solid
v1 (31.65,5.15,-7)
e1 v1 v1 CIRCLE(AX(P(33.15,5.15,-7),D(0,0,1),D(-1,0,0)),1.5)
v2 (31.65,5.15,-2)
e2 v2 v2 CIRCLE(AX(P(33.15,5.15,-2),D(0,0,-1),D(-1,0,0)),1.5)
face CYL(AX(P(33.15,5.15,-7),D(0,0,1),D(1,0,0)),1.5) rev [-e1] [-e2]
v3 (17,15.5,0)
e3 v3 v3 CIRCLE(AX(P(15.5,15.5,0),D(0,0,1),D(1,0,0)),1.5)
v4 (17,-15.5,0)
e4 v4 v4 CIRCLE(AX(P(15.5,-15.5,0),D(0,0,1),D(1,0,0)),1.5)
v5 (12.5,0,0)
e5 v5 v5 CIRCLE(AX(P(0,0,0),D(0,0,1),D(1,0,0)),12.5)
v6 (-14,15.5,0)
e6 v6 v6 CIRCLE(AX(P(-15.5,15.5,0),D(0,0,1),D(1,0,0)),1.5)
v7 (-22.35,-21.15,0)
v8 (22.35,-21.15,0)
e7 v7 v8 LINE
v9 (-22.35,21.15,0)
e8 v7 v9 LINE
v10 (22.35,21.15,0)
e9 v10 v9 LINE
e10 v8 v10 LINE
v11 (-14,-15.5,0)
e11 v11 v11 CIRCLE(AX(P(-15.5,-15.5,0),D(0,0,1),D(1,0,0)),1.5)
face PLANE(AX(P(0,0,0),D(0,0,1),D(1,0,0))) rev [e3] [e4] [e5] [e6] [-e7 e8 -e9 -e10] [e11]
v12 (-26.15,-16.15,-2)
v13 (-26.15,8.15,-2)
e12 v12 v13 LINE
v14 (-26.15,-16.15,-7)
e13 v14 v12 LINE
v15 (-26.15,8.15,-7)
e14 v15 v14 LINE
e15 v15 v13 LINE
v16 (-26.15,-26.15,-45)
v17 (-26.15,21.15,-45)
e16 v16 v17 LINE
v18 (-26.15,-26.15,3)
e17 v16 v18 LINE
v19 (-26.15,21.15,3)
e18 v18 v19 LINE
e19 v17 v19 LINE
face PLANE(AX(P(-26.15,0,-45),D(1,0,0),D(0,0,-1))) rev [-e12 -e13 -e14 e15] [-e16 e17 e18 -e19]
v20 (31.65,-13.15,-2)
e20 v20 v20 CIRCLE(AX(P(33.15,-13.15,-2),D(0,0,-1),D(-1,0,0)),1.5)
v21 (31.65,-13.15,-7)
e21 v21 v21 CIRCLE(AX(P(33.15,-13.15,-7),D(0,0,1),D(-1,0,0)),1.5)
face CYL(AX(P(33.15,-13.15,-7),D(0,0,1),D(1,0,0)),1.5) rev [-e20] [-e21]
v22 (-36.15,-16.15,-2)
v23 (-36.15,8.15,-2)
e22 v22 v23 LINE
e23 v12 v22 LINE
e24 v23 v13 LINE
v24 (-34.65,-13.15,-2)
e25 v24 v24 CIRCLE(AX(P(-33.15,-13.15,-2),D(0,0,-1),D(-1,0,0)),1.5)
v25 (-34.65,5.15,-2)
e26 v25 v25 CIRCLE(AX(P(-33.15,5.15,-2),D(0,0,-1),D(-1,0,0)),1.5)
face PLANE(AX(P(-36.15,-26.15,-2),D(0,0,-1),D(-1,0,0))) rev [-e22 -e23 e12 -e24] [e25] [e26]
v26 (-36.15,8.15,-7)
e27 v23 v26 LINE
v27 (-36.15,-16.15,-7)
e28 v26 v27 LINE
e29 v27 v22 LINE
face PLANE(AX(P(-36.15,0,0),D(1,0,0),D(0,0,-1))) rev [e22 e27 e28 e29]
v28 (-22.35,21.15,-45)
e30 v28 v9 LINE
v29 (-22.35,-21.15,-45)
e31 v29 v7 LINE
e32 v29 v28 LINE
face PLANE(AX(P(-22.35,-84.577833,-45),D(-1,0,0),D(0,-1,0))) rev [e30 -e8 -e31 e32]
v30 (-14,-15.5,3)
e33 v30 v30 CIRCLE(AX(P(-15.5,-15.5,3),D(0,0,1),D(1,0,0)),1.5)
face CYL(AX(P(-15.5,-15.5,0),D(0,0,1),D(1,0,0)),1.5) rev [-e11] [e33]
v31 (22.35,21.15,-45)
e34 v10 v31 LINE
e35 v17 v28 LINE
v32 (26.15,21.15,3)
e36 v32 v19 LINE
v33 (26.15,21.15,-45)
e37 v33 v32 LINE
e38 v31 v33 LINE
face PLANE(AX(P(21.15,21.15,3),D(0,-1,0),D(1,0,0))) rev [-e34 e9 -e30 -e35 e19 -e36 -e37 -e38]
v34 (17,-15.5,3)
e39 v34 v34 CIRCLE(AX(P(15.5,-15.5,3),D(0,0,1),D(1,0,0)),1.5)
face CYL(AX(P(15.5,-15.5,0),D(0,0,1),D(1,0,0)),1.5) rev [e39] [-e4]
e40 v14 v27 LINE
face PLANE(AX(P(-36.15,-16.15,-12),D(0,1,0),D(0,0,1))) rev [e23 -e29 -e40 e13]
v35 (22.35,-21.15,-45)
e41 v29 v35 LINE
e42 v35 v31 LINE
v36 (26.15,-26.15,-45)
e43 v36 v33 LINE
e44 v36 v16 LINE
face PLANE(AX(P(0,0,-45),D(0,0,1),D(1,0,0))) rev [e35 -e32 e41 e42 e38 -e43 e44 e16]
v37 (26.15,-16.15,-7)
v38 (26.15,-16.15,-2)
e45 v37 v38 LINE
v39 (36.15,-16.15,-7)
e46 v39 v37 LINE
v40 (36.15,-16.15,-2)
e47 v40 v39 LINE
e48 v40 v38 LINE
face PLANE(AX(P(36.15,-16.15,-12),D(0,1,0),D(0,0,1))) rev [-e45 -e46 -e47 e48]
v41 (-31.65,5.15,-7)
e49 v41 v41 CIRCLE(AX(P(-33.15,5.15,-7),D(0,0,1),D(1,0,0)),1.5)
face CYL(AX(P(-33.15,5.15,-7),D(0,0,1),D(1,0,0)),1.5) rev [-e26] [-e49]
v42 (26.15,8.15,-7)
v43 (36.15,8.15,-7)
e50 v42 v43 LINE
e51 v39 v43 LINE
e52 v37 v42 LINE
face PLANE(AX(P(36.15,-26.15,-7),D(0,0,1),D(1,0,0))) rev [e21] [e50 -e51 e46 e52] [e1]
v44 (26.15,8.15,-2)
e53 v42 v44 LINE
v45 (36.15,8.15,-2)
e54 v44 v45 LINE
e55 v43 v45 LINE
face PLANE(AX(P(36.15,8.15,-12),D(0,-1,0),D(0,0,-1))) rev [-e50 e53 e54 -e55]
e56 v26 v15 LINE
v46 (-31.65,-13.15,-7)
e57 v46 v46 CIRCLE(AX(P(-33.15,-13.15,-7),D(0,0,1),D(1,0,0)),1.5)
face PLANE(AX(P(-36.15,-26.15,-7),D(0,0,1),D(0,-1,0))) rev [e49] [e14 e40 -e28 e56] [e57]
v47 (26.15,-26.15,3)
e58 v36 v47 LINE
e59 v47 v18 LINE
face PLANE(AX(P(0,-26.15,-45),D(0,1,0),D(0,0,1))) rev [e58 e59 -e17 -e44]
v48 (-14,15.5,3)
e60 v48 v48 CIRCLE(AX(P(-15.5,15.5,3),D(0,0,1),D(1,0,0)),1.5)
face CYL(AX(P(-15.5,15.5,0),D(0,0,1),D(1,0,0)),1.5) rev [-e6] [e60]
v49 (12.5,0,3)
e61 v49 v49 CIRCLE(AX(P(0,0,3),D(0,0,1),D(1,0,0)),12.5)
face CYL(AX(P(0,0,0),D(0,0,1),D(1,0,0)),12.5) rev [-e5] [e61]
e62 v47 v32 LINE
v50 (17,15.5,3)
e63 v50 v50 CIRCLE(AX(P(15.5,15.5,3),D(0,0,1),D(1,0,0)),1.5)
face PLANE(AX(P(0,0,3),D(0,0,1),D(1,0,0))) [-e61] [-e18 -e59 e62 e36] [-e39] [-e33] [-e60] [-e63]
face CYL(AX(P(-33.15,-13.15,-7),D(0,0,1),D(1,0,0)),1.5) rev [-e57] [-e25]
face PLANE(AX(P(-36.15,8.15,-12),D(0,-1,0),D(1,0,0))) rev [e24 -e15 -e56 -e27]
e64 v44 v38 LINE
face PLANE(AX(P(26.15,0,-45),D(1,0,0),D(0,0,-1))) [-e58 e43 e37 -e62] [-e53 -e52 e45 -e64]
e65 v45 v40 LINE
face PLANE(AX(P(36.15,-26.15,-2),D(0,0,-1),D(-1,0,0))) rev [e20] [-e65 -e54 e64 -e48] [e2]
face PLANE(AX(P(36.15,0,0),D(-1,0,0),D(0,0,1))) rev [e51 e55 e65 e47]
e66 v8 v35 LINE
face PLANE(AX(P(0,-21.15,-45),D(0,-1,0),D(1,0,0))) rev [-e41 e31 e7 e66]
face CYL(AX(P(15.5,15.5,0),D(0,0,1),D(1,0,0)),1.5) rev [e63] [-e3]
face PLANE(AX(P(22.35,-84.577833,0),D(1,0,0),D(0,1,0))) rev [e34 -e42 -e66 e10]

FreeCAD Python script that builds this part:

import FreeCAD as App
import Part
import Sketcher
from FreeCAD import Vector

doc = App.newDocument("Part")
params = doc.addObject("Spreadsheet::Sheet", "Params")
for row, (alias, value) in enumerate([
    ("sketch1_width", "42.3 mm"),
    ("pad1_length", "3 mm"),
    ("sketch2_diameter", "3 mm"),
    ("pocket1_length", "3 mm"),
    ("sketch3_diameter", "25 mm"),
    ("pocket2_length", "3 mm"),
    ("sketch4_width", "5 mm"),
    ("sketch4_width2", "52.3 mm"),
    ("sketch4_height", "47.3 mm"),
    ("pad2_length", "48 mm"),
    ("sketch5_height", "5 mm"),
    ("sketch5_width", "47.3 mm"),
    ("pad3_length", "10 mm"),
    ("sketch6_height", "5 mm"),
    ("sketch6_width", "47.3 mm"),
    ("pad4_length", "10 mm"),
    ("sketch7_diameter", "3 mm"),
    ("pocket3_length", "10 mm"),
    ("sketch8_height", "45 mm"),
    ("sketch8_width", "44.7 mm"),
    ("pocket4_length", "42.3 mm"),
    ("sketch9_width", "10 mm"),
    ("sketch9_height", "13 mm"),
    ("pocket5_length", "10 mm"),
], start=1):
    params.set(f"A{row}", alias)
    params.set(f"B{row}", "=" + value)
    params.setAlias(f"B{row}", alias)

body = doc.addObject("PartDesign::Body", "Body")

sketch1 = body.newObject("Sketcher::SketchObject", "Sketch")
sketch1.AttachmentSupport = (doc.getObject("XY_Plane"), [""])
sketch1.MapMode = "FlatFace"
sketch1.addGeometry([
    Part.LineSegment(Vector(-21, 21, 0), Vector(-21, -21, 0)),
    Part.LineSegment(Vector(-21, -21, 0), Vector(21, -21, 0)),
    Part.LineSegment(Vector(21, -21, 0), Vector(21, 21, 0)),
    Part.LineSegment(Vector(21, 21, 0), Vector(-21, 21, 0)),
], False)
sketch1.addConstraint([
    Sketcher.Constraint("Coincident", 0, 2, 1, 1),
    Sketcher.Constraint("Coincident", 1, 2, 2, 1),
    Sketcher.Constraint("Coincident", 2, 2, 3, 1),
    Sketcher.Constraint("Coincident", 3, 2, 0, 1),
    Sketcher.Constraint("Vertical", 0),
    Sketcher.Constraint("Horizontal", 1),
    Sketcher.Constraint("Vertical", 2),
    Sketcher.Constraint("Horizontal", 3),
    Sketcher.Constraint("Symmetric", 0, 2, 2, 2, -1, 1),
    Sketcher.Constraint("Equal", 3, 0),
    Sketcher.Constraint("DistanceX", 1, 1, 1, 2, 42.3),
])
sketch1.setExpression("Constraints[10]", "Params.sketch1_width")
pad1 = body.newObject("PartDesign::Pad", "Pad")
pad1.Profile = sketch1
pad1.setExpression("Length", "Params.pad1_length")

sketch2 = body.newObject("Sketcher::SketchObject", "Sketch001")
sketch2.AttachmentSupport = (doc.getObject("XY_Plane"), [""])
sketch2.MapMode = "FlatFace"
sketch2.AttachmentOffset = App.Placement(Vector(0, 0, 3), App.Rotation())
sketch2.addGeometry([
    Part.Circle(Vector(-15.5, 15.5, 0), Vector(0, 0, 1), 1.5),
    Part.Circle(Vector(15.5, 15.5, 0), Vector(0, 0, 1), 1.5),
    Part.Circle(Vector(15.5, -15.5, 0), Vector(0, 0, 1), 1.5),
    Part.Circle(Vector(-15.5, -15.5, 0), Vector(0, 0, 1), 1.5),
], False)
sketch2.addConstraint([
    Sketcher.Constraint("Equal", 0, 1),
    Sketcher.Constraint("Equal", 1, 2),
    Sketcher.Constraint("Equal", 2, 3),
    Sketcher.Constraint("Symmetric", 0, 3, 2, 3, -1, 1),
    Sketcher.Constraint("Symmetric", 1, 3, 3, 3, -1, 1),
    Sketcher.Constraint("Symmetric", 0, 3, 1, 3, -2),
    Sketcher.Constraint("Diameter", 0, 3.0),
    Sketcher.Constraint("DistanceX", 0, 3, 1, 3, 31.0),
    Sketcher.Constraint("DistanceY", 2, 3, 1, 3, 31.0),
])
sketch2.setExpression("Constraints[6]", "Params.sketch2_diameter")
pocket1 = body.newObject("PartDesign::Pocket", "Pocket")
pocket1.Profile = sketch2
pocket1.setExpression("Length", "Params.pocket1_length")

sketch3 = body.newObject("Sketcher::SketchObject", "Sketch002")
sketch3.AttachmentSupport = (doc.getObject("XY_Plane"), [""])
sketch3.MapMode = "FlatFace"
sketch3.AttachmentOffset = App.Placement(Vector(0, 0, 3), App.Rotation())
sketch3.addGeometry(Part.Circle(Vector(0, 0, 0), Vector(0, 0, 1), 12), False)
sketch3.addConstraint([
    Sketcher.Constraint("Coincident", 0, 3, -1, 1),
    Sketcher.Constraint("Diameter", 0, 25.0),
])
sketch3.setExpression("Constraints[1]", "Params.sketch3_diameter")
pocket2 = body.newObject("PartDesign::Pocket", "Pocket001")
pocket2.Profile = sketch3
pocket2.setExpression("Length", "Params.pocket2_length")

sketch4 = body.newObject("Sketcher::SketchObject", "Sketch003")
sketch4.AttachmentSupport = (doc.getObject("XY_Plane"), [""])
sketch4.MapMode = "FlatFace"
sketch4.AttachmentOffset = App.Placement(Vector(0, 0, 3), App.Rotation())
sketch4.addGeometry([
    Part.LineSegment(Vector(-26, -26, 0), Vector(26, -26, 0)),
    Part.LineSegment(Vector(26, -26, 0), Vector(26, 21, 0)),
    Part.LineSegment(Vector(26, 21, 0), Vector(21, 21, 0)),
    Part.LineSegment(Vector(21, 21, 0), Vector(21, -21, 0)),
    Part.LineSegment(Vector(21, -21, 0), Vector(-21, -21, 0)),
    Part.LineSegment(Vector(-21, -21, 0), Vector(-21, 21, 0)),
    Part.LineSegment(Vector(-21, 21, 0), Vector(-26, 21, 0)),
    Part.LineSegment(Vector(-26, 21, 0), Vector(-26, -26, 0)),
], False)
sketch4.addConstraint([
    Sketcher.Constraint("Coincident", 0, 2, 1, 1),
    Sketcher.Constraint("Coincident", 1, 2, 2, 1),
    Sketcher.Constraint("Coincident", 2, 2, 3, 1),
    Sketcher.Constraint("Coincident", 3, 2, 4, 1),
    Sketcher.Constraint("Coincident", 4, 2, 5, 1),
    Sketcher.Constraint("Coincident", 5, 2, 6, 1),
    Sketcher.Constraint("Coincident", 6, 2, 7, 1),
    Sketcher.Constraint("Coincident", 7, 2, 0, 1),
    Sketcher.Constraint("Horizontal", 0),
    Sketcher.Constraint("Vertical", 1),
    Sketcher.Constraint("Horizontal", 2),
    Sketcher.Constraint("Vertical", 3),
    Sketcher.Constraint("Horizontal", 4),
    Sketcher.Constraint("Vertical", 5),
    Sketcher.Constraint("Horizontal", 6),
    Sketcher.Constraint("Vertical", 7),
    Sketcher.Constraint("Symmetric", 2, 2, 4, 2, -1, 1),
    Sketcher.Constraint("Symmetric", 1, 2, 6, 2, -2),
    Sketcher.Constraint("Equal", 4, 3),
    Sketcher.Constraint("DistanceX", 2, 2, 2, 1, 5.0),
    Sketcher.Constraint("DistanceX", 0, 1, 0, 2, 52.3),
    Sketcher.Constraint("DistanceY", 1, 1, 1, 2, 47.3),
])
sketch4.setExpression("Constraints[19]", "Params.sketch4_width")
sketch4.setExpression("Constraints[20]", "Params.sketch4_width2")
sketch4.setExpression("Constraints[21]", "Params.sketch4_height")
pad2 = body.newObject("PartDesign::Pad", "Pad001")
pad2.Profile = sketch4
pad2.setExpression("Length", "Params.pad2_length")
pad2.Reversed = True

sketch5 = body.newObject("Sketcher::SketchObject", "Sketch004")
sketch5.AttachmentSupport = (doc.getObject("YZ_Plane"), [""])
sketch5.MapMode = "FlatFace"
sketch5.AttachmentOffset = App.Placement(Vector(0, 0, -26.15), App.Rotation())
sketch5.addGeometry([
    Part.LineSegment(Vector(21, -7, 0), Vector(-26, -7, 0)),
    Part.LineSegment(Vector(-26, -7, 0), Vector(-26, -2, 0)),
    Part.LineSegment(Vector(-26, -2, 0), Vector(21, -2, 0)),
    Part.LineSegment(Vector(21, -2, 0), Vector(21, -7, 0)),
], False)
sketch5.addConstraint([
    Sketcher.Constraint("Coincident", 0, 2, 1, 1),
    Sketcher.Constraint("Coincident", 1, 2, 2, 1),
    Sketcher.Constraint("Coincident", 2, 2, 3, 1),
    Sketcher.Constraint("Coincident", 3, 2, 0, 1),
    Sketcher.Constraint("Horizontal", 0),
    Sketcher.Constraint("Vertical", 1),
    Sketcher.Constraint("Horizontal", 2),
    Sketcher.Constraint("Vertical", 3),
    Sketcher.Constraint("DistanceY", 1, 1, 1, 2, 5.0),
    Sketcher.Constraint("DistanceX", 0, 2, 0, 1, 47.3),
    Sketcher.Constraint("DistanceY", 0, 2, -1, 1, 7.0),
    Sketcher.Constraint("DistanceX", 0, 2, -1, 1, 26.15),
])
sketch5.setExpression("Constraints[8]", "Params.sketch5_height")
sketch5.setExpression("Constraints[9]", "Params.sketch5_width")
pad3 = body.newObject("PartDesign::Pad", "Pad002")
pad3.Profile = sketch5
pad3.setExpression("Length", "Params.pad3_length")
pad3.Reversed = True

sketch6 = body.newObject("Sketcher::SketchObject", "Sketch005")
sketch6.AttachmentSupport = (doc.getObject("YZ_Plane"), [""])
sketch6.MapMode = "FlatFace"
sketch6.AttachmentOffset = App.Placement(Vector(0, 0, 26.15), App.Rotation())
sketch6.addGeometry([
    Part.LineSegment(Vector(21, -2, 0), Vector(-26, -2, 0)),
    Part.LineSegment(Vector(-26, -2, 0), Vector(-26, -7, 0)),
    Part.LineSegment(Vector(-26, -7, 0), Vector(21, -7, 0)),
    Part.LineSegment(Vector(21, -7, 0), Vector(21, -2, 0)),
], False)
sketch6.addConstraint([
    Sketcher.Constraint("Coincident", 0, 2, 1, 1),
    Sketcher.Constraint("Coincident", 1, 2, 2, 1),
    Sketcher.Constraint("Coincident", 2, 2, 3, 1),
    Sketcher.Constraint("Coincident", 3, 2, 0, 1),
    Sketcher.Constraint("Horizontal", 0),
    Sketcher.Constraint("Vertical", 1),
    Sketcher.Constraint("Horizontal", 2),
    Sketcher.Constraint("Vertical", 3),
    Sketcher.Constraint("DistanceY", 1, 2, 1, 1, 5.0),
    Sketcher.Constraint("DistanceX", 0, 2, 0, 1, 47.3),
    Sketcher.Constraint("DistanceY", 0, 2, -1, 1, 2.0),
    Sketcher.Constraint("DistanceX", 0, 2, -1, 1, 26.15),
])
sketch6.setExpression("Constraints[8]", "Params.sketch6_height")
sketch6.setExpression("Constraints[9]", "Params.sketch6_width")
pad4 = body.newObject("PartDesign::Pad", "Pad003")
pad4.Profile = sketch6
pad4.setExpression("Length", "Params.pad4_length")

sketch7 = body.newObject("Sketcher::SketchObject", "Sketch006")
sketch7.AttachmentSupport = (doc.getObject("XY_Plane"), [""])
sketch7.MapMode = "FlatFace"
sketch7.AttachmentOffset = App.Placement(Vector(0, 0, 3), App.Rotation())
sketch7.addGeometry([
    Part.Circle(Vector(-33.1, -13.2, 0), Vector(0, 0, 1), 1.5),
    Part.Circle(Vector(-33.1, 5.2, 0), Vector(0, 0, 1), 1.5),
    Part.Circle(Vector(33.1, -13.2, 0), Vector(0, 0, 1), 1.5),
    Part.Circle(Vector(33.1, 5.2, 0), Vector(0, 0, 1), 1.5),
], False)
sketch7.addConstraint([
    Sketcher.Constraint("Equal", 0, 1),
    Sketcher.Constraint("Equal", 1, 2),
    Sketcher.Constraint("Equal", 2, 3),
    Sketcher.Constraint("Symmetric", 0, 3, 2, 3, -2),
    Sketcher.Constraint("Symmetric", 1, 3, 3, 3, -2),
    Sketcher.Constraint("Vertical", 0, 3, 1, 3),
    Sketcher.Constraint("Diameter", 0, 3.0),
    Sketcher.Constraint("DistanceY", 0, 3, 1, 3, 18.3),
    Sketcher.Constraint("DistanceX", 0, 3, 2, 3, 66.3),
    Sketcher.Constraint("DistanceY", 0, 3, -1, 1, 13.15),
])
sketch7.setExpression("Constraints[6]", "Params.sketch7_diameter")
pocket3 = body.newObject("PartDesign::Pocket", "Pocket002")
pocket3.Profile = sketch7
pocket3.setExpression("Length", "Params.pocket3_length")

sketch8 = body.newObject("Sketcher::SketchObject", "Sketch007")
sketch8.AttachmentSupport = (doc.getObject("XZ_Plane"), [""])
sketch8.MapMode = "FlatFace"
sketch8.AttachmentOffset = App.Placement(Vector(0, 0, -21.15), App.Rotation())
sketch8.addGeometry([
    Part.LineSegment(Vector(-22, -45, 0), Vector(-22, 0, 0)),
    Part.LineSegment(Vector(-22, 0, 0), Vector(22, 0, 0)),
    Part.LineSegment(Vector(22, 0, 0), Vector(22, -45, 0)),
    Part.LineSegment(Vector(22, -45, 0), Vector(-22, -45, 0)),
], False)
sketch8.addConstraint([
    Sketcher.Constraint("Coincident", 0, 2, 1, 1),
    Sketcher.Constraint("Coincident", 1, 2, 2, 1),
    Sketcher.Constraint("Coincident", 2, 2, 3, 1),
    Sketcher.Constraint("Coincident", 3, 2, 0, 1),
    Sketcher.Constraint("Vertical", 0),
    Sketcher.Constraint("Horizontal", 1),
    Sketcher.Constraint("Vertical", 2),
    Sketcher.Constraint("Horizontal", 3),
    Sketcher.Constraint("Symmetric", 0, 2, 1, 2, -1, 1),
    Sketcher.Constraint("DistanceY", 0, 1, 0, 2, 45.0),
    Sketcher.Constraint("DistanceX", 1, 1, 1, 2, 44.7),
])
sketch8.setExpression("Constraints[9]", "Params.sketch8_height")
sketch8.setExpression("Constraints[10]", "Params.sketch8_width")
pocket4 = body.newObject("PartDesign::Pocket", "Pocket003")
pocket4.Profile = sketch8
pocket4.setExpression("Length", "Params.pocket4_length")
pocket4.Reversed = True

sketch9 = body.newObject("Sketcher::SketchObject", "Sketch008")
sketch9.AttachmentSupport = (doc.getObject("XY_Plane"), [""])
sketch9.MapMode = "FlatFace"
sketch9.AttachmentOffset = App.Placement(Vector(0, 0, -2), App.Rotation())
sketch9.addGeometry([
    Part.LineSegment(Vector(-36, 21, 0), Vector(-36, 8, 0)),
    Part.LineSegment(Vector(-36, 8, 0), Vector(-26, 8, 0)),
    Part.LineSegment(Vector(-26, 8, 0), Vector(-26, 21, 0)),
    Part.LineSegment(Vector(-26, 21, 0), Vector(-36, 21, 0)),
    Part.LineSegment(Vector(26, 21, 0), Vector(26, 8, 0)),
    Part.LineSegment(Vector(26, 8, 0), Vector(36, 8, 0)),
    Part.LineSegment(Vector(36, 8, 0), Vector(36, 21, 0)),
    Part.LineSegment(Vector(36, 21, 0), Vector(26, 21, 0)),
    Part.LineSegment(Vector(-36, -16, 0), Vector(-36, -26, 0)),
    Part.LineSegment(Vector(-36, -26, 0), Vector(-26, -26, 0)),
    Part.LineSegment(Vector(-26, -26, 0), Vector(-26, -16, 0)),
    Part.LineSegment(Vector(-26, -16, 0), Vector(-36, -16, 0)),
    Part.LineSegment(Vector(26, -16, 0), Vector(26, -26, 0)),
    Part.LineSegment(Vector(26, -26, 0), Vector(36, -26, 0)),
    Part.LineSegment(Vector(36, -26, 0), Vector(36, -16, 0)),
    Part.LineSegment(Vector(36, -16, 0), Vector(26, -16, 0)),
], False)
sketch9.addConstraint([
    Sketcher.Constraint("Coincident", 0, 2, 1, 1),
    Sketcher.Constraint("Coincident", 1, 2, 2, 1),
    Sketcher.Constraint("Coincident", 2, 2, 3, 1),
    Sketcher.Constraint("Coincident", 3, 2, 0, 1),
    Sketcher.Constraint("Coincident", 4, 2, 5, 1),
    Sketcher.Constraint("Coincident", 5, 2, 6, 1),
    Sketcher.Constraint("Coincident", 6, 2, 7, 1),
    Sketcher.Constraint("Coincident", 7, 2, 4, 1),
    Sketcher.Constraint("Coincident", 8, 2, 9, 1),
    Sketcher.Constraint("Coincident", 9, 2, 10, 1),
    Sketcher.Constraint("Coincident", 10, 2, 11, 1),
    Sketcher.Constraint("Coincident", 11, 2, 8, 1),
    Sketcher.Constraint("Coincident", 12, 2, 13, 1),
    Sketcher.Constraint("Coincident", 13, 2, 14, 1),
    Sketcher.Constraint("Coincident", 14, 2, 15, 1),
    Sketcher.Constraint("Coincident", 15, 2, 12, 1),
    Sketcher.Constraint("Vertical", 0),
    Sketcher.Constraint("Horizontal", 1),
    Sketcher.Constraint("Vertical", 2),
    Sketcher.Constraint("Horizontal", 3),
    Sketcher.Constraint("Vertical", 4),
    Sketcher.Constraint("Horizontal", 5),
    Sketcher.Constraint("Vertical", 6),
    Sketcher.Constraint("Horizontal", 7),
    Sketcher.Constraint("Vertical", 8),
    Sketcher.Constraint("Horizontal", 9),
    Sketcher.Constraint("Vertical", 10),
    Sketcher.Constraint("Horizontal", 11),
    Sketcher.Constraint("Vertical", 12),
    Sketcher.Constraint("Horizontal", 13),
    Sketcher.Constraint("Vertical", 14),
    Sketcher.Constraint("Horizontal", 15),
    Sketcher.Constraint("Symmetric", 1, 2, 4, 2, -2),
    Sketcher.Constraint("Symmetric", 3, 2, 6, 2, -2),
    Sketcher.Constraint("Symmetric", 9, 2, 12, 2, -2),
    Sketcher.Constraint("Symmetric", 11, 2, 14, 2, -2),
    Sketcher.Constraint("Vertical", 3, 2, 8, 2),
    Sketcher.Constraint("Vertical", 2, 2, 9, 2),
    Sketcher.Constraint("Equal", 15, 8),
    Sketcher.Constraint("DistanceX", 1, 1, 1, 2, 10.0),
    Sketcher.Constraint("DistanceY", 0, 2, 0, 1, 13.0),
    Sketcher.Constraint("DistanceX", 1, 2, 4, 2, 52.3),
    Sketcher.Constraint("DistanceY", 8, 2, 0, 2, 34.3),
    Sketcher.Constraint("DistanceY", -1, 1, 0, 2, 8.15),
])
sketch9.setExpression("Constraints[39]", "Params.sketch9_width")
sketch9.setExpression("Constraints[40]", "Params.sketch9_height")
pocket5 = body.newObject("PartDesign::Pocket", "Pocket004")
pocket5.Profile = sketch9
pocket5.setExpression("Length", "Params.pocket5_length")

doc.recompute()
